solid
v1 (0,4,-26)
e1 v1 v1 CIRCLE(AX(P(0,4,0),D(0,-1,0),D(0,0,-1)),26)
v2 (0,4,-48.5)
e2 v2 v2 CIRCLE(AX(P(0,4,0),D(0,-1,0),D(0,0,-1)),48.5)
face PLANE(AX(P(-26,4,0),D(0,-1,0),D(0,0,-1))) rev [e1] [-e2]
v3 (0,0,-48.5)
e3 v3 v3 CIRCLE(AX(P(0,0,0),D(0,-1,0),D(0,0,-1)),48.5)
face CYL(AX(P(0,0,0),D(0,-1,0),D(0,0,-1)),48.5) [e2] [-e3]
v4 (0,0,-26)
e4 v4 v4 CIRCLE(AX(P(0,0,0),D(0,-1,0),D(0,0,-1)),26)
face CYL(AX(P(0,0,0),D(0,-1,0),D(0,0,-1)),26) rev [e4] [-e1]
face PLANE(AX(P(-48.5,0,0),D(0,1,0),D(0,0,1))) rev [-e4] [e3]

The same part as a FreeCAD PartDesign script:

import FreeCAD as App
import Part
import Sketcher

V = App.Vector


def add_polygon(sketch, points):
    """Adds a closed chain of lines whose ends are joined by coincident constraints."""
    first, n = sketch.GeometryCount, len(points)
    for a, b in zip(points, points[1:] + points[:1]):
        sketch.addGeometry(Part.LineSegment(App.Vector(*a, 0), App.Vector(*b, 0)), False)
    for i in range(n):
        sketch.addConstraint(Sketcher.Constraint("Coincident", first + i, 2, first + (i + 1) % n, 1))

doc = App.newDocument("Part")
body = doc.addObject("PartDesign::Body", "Body")

sketch1 = body.newObject("Sketcher::SketchObject", "Sketch")
sketch1.AttachmentSupport = (doc.getObject("XY_Plane"), [""])
sketch1.MapMode = "FlatFace"
add_polygon(sketch1, [(-48.5, 4), (-48.5, 0), (-26, 0), (-26, 4)])
sketch1.addConstraint(Sketcher.Constraint("Vertical", 0))
sketch1.addConstraint(Sketcher.Constraint("Horizontal", 1))
sketch1.addConstraint(Sketcher.Constraint("Vertical", 2))
sketch1.addConstraint(Sketcher.Constraint("Horizontal", 3))
sketch1.addConstraint(Sketcher.Constraint("PointOnObject", 0, 2, -1))
sketch1.addConstraint(Sketcher.Constraint("DistanceY", 0, 2, 0, 1, 4.0))
sketch1.addConstraint(Sketcher.Constraint("DistanceX", 1, 1, 1, 2, 22.5))
sketch1.addConstraint(Sketcher.Constraint("DistanceX", 1, 2, -1, 1, 26.0))
revolution = body.newObject("PartDesign::Revolution", "Revolution")
revolution.Profile = sketch1
revolution.ReferenceAxis = (sketch1, ["V_Axis"])
revolution.Angle = 360

doc.recompute()
